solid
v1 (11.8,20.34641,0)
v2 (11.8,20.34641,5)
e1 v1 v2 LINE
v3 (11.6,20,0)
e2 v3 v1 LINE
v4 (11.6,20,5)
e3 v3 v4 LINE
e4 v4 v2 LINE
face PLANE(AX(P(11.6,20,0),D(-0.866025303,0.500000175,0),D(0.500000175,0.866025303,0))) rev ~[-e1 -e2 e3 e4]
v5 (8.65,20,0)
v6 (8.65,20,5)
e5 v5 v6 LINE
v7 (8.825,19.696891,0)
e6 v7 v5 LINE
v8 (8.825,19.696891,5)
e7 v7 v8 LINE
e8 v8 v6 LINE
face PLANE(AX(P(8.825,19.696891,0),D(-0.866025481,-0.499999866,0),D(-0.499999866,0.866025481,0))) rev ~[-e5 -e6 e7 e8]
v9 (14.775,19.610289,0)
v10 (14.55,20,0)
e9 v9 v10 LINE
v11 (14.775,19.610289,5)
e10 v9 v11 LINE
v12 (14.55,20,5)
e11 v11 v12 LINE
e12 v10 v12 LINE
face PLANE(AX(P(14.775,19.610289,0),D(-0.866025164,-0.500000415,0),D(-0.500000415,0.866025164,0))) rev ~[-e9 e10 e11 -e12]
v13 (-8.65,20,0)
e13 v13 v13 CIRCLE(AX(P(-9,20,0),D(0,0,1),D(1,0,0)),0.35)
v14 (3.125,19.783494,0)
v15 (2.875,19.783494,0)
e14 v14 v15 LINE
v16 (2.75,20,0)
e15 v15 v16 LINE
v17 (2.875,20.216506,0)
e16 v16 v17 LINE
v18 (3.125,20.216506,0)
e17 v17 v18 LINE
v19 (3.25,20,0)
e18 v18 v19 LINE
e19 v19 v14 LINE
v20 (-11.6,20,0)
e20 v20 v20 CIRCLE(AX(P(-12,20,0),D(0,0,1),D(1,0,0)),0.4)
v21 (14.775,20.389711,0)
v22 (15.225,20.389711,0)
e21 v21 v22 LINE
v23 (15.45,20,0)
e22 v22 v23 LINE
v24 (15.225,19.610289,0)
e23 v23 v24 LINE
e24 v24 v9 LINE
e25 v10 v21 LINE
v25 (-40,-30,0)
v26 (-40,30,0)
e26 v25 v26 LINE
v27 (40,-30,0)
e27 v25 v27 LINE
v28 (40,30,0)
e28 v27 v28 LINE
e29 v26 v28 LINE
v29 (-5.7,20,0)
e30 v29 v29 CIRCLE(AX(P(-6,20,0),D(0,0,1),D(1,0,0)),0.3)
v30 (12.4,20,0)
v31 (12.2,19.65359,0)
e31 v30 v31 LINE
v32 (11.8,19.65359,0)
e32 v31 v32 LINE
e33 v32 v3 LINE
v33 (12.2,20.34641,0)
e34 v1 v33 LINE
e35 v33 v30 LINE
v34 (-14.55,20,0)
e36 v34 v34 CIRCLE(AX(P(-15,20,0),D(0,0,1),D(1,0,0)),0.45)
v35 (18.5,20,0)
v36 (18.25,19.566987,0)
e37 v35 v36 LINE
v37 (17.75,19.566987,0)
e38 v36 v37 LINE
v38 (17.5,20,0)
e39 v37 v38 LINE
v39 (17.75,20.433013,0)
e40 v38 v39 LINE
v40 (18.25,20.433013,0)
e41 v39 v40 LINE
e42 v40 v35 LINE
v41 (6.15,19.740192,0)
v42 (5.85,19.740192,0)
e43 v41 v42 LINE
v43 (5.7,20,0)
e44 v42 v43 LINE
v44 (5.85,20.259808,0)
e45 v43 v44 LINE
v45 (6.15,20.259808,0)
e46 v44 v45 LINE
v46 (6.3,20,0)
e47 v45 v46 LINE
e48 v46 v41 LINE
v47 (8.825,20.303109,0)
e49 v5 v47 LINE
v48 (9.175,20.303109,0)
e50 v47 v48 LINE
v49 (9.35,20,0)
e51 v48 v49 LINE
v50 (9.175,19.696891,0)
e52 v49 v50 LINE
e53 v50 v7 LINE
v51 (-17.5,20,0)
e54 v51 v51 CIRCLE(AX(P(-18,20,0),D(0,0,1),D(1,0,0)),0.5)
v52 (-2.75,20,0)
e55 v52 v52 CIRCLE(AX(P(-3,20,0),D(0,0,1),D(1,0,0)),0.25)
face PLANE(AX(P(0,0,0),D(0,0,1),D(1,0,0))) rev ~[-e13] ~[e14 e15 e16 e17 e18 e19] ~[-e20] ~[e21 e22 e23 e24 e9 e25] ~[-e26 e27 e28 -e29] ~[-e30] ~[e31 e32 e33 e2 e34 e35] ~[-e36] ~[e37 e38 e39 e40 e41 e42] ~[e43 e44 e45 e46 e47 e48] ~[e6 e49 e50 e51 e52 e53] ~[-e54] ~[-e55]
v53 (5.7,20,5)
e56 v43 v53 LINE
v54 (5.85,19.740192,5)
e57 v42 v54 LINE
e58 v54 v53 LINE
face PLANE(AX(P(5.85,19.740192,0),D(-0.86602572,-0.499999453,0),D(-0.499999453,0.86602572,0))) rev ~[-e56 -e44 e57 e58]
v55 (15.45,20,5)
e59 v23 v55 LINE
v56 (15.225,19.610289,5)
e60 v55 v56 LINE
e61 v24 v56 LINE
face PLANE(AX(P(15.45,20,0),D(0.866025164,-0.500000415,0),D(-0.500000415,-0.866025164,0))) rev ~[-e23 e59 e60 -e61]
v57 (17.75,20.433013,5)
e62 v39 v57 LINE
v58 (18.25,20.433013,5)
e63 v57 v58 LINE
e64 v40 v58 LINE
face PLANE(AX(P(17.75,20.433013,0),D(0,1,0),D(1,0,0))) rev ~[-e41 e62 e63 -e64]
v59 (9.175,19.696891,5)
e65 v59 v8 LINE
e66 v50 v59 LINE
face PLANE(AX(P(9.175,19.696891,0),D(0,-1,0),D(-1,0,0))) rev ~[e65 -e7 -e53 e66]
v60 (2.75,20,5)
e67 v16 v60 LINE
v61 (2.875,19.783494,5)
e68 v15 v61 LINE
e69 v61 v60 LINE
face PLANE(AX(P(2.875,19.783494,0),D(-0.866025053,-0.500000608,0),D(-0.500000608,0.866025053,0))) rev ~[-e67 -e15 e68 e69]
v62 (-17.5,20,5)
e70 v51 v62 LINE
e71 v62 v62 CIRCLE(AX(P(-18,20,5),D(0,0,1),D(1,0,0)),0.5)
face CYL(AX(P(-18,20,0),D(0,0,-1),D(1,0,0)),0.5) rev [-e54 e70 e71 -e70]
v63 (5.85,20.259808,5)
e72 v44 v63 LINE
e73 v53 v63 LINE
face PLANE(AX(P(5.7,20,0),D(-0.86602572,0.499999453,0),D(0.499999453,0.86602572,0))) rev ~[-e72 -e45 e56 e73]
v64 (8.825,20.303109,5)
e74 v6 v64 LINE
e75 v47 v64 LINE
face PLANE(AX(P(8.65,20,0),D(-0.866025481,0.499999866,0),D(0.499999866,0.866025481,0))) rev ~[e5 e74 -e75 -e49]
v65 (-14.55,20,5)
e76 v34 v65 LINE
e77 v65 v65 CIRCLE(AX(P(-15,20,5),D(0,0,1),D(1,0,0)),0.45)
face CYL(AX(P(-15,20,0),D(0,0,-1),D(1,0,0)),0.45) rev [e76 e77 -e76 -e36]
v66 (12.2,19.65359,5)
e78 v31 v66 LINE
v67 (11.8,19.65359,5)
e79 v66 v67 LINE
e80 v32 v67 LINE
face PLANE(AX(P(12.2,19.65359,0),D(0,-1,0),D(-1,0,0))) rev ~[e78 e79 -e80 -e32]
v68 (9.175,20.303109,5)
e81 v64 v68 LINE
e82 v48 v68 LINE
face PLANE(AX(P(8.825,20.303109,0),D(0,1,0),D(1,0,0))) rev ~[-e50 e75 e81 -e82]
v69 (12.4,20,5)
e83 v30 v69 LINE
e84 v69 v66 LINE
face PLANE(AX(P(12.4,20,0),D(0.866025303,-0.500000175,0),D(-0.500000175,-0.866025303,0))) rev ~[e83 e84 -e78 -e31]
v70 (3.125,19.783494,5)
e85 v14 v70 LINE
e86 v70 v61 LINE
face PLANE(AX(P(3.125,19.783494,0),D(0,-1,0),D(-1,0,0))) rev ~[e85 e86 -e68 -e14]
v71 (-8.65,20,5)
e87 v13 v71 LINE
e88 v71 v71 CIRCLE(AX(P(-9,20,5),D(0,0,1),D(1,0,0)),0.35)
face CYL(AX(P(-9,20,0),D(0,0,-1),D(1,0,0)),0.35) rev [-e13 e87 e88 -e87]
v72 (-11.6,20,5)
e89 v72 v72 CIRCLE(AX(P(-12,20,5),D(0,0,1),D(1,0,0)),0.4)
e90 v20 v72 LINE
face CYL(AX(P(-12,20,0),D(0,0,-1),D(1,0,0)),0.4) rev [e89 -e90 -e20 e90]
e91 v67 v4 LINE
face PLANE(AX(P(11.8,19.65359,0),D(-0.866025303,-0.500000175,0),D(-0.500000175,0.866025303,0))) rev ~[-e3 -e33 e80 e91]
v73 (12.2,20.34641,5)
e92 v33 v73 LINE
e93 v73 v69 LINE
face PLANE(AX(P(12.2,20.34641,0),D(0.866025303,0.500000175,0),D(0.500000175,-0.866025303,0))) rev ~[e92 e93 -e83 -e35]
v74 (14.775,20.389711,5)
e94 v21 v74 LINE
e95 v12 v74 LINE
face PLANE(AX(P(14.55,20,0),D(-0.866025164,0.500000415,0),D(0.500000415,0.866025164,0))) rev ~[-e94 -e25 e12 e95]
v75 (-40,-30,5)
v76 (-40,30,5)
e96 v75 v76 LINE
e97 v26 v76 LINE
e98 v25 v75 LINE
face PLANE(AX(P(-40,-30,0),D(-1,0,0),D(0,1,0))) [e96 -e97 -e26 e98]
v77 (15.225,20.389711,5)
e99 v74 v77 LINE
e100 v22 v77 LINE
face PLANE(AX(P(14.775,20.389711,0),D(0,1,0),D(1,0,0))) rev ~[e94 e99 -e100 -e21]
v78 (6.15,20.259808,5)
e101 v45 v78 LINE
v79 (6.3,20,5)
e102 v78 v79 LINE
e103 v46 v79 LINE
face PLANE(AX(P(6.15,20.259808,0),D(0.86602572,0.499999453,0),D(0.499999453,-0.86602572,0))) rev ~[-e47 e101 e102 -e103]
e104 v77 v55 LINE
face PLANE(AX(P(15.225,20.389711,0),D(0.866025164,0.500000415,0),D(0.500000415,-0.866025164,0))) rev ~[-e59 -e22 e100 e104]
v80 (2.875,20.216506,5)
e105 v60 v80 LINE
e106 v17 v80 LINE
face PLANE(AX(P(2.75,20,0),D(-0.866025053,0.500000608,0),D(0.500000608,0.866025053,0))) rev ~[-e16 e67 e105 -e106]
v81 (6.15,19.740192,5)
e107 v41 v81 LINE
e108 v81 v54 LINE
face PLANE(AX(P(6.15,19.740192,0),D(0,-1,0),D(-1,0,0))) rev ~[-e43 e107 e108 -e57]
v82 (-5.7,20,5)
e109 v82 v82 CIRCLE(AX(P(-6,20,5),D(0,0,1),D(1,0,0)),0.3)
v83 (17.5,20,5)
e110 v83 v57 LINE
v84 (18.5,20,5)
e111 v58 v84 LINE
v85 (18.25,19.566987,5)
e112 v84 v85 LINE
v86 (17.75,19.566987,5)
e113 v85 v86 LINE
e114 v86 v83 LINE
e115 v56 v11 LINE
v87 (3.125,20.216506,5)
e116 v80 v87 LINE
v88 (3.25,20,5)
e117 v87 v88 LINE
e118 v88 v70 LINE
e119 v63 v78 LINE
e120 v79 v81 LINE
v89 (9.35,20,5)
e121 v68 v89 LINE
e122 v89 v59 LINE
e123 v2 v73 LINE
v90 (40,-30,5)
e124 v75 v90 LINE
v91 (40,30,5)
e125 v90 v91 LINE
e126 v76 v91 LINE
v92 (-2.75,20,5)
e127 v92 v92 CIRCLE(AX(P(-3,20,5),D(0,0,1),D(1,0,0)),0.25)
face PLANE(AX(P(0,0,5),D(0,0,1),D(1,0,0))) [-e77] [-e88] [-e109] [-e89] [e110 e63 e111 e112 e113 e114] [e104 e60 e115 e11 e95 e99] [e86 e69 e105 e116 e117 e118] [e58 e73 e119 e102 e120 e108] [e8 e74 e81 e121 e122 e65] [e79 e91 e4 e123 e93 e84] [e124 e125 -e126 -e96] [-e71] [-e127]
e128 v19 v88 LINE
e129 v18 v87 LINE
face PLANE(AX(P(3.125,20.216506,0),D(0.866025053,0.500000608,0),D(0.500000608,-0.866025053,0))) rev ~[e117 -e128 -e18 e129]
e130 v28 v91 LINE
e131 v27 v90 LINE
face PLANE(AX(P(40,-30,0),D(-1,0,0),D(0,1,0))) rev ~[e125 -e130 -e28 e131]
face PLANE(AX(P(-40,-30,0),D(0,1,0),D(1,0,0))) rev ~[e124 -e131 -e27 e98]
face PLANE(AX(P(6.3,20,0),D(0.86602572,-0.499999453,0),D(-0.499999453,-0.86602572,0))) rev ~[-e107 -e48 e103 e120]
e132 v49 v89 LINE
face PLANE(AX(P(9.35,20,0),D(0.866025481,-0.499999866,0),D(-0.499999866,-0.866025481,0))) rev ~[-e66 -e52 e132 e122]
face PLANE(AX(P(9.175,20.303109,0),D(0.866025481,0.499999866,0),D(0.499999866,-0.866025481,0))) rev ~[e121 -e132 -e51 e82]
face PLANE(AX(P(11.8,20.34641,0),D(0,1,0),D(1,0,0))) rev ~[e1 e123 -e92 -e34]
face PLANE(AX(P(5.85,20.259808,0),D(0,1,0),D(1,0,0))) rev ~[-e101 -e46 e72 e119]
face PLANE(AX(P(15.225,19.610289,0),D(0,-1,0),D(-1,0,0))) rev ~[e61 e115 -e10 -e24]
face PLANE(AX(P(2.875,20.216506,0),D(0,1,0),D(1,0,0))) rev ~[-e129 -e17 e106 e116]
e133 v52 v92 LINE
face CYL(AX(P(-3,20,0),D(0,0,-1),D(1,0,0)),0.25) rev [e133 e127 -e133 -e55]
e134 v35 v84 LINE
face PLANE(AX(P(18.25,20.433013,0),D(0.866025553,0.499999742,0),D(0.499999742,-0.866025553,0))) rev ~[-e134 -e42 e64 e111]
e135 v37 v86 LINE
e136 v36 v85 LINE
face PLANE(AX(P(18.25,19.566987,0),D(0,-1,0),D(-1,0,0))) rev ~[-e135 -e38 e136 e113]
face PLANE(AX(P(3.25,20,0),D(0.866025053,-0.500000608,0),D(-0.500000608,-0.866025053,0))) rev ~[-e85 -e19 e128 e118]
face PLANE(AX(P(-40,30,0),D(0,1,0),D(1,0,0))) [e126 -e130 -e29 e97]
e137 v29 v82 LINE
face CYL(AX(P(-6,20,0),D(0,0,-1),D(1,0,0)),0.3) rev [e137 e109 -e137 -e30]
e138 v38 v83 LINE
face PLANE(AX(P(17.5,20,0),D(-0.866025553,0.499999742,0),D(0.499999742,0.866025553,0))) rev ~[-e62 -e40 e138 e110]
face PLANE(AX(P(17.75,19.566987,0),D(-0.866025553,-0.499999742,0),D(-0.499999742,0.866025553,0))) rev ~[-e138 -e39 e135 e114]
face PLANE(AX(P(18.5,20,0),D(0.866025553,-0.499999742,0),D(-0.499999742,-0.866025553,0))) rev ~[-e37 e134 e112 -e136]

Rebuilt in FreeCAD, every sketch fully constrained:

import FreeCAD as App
import Part
import Sketcher

V = App.Vector
Q = App.Units.Quantity


def add_polygon(sketch, points):
    """Adds a closed chain of lines whose ends are joined by coincident constraints."""
    first, n = sketch.GeometryCount, len(points)
    for a, b in zip(points, points[1:] + points[:1]):
        sketch.addGeometry(Part.LineSegment(App.Vector(*a, 0), App.Vector(*b, 0)), False)
    for i in range(n):
        sketch.addConstraint(Sketcher.Constraint("Coincident", first + i, 2, first + (i + 1) % n, 1))

doc = App.newDocument("Part")
body = doc.addObject("PartDesign::Body", "Body")

# Sketch on XY plane
sketch1 = doc.addObject("Sketcher::SketchObject", "Sketch")
body.addObject(sketch1)
sketch1.AttachmentSupport = (doc.XY_Plane, [""])
sketch1.MapMode = "FlatFace"
add_polygon(sketch1, [(-40, 30), (-40, -30), (40, -30), (40, 30)])  # lines 0-3
sketch1.addGeometry(Part.Circle(V(-18, 20, 0), V(0, 0, 1), 0.5), False)  # 4
sketch1.addGeometry(Part.Circle(V(-15, 20, 0), V(0, 0, 1), 0.45), False)  # 5
sketch1.addGeometry(Part.Circle(V(-12, 20, 0), V(0, 0, 1), 0.4), False)  # 6
sketch1.addGeometry(Part.Circle(V(-9, 20, 0), V(0, 0, 1), 0.35), False)  # 7
sketch1.addGeometry(Part.Circle(V(-6, 20, 0), V(0, 0, 1), 0.3), False)  # 8
sketch1.addGeometry(Part.Circle(V(-3, 20, 0), V(0, 0, 1), 0.25), False)  # 9
add_polygon(sketch1, [(2.75, 20), (2.88, 20.22), (3.12, 20.22), (3.25, 20), (3.12, 19.78), (2.88, 19.78)])  # lines 10-15
add_polygon(sketch1, [(5.7, 20), (5.85, 20.26), (6.15, 20.26), (6.3, 20), (6.15, 19.74), (5.85, 19.74)])  # lines 16-21
add_polygon(sketch1, [(8.65, 20), (8.82, 20.3), (9.18, 20.3), (9.35, 20), (9.18, 19.7), (8.82, 19.7)])  # lines 22-27
add_polygon(sketch1, [(11.6, 20), (11.8, 20.35), (12.2, 20.35), (12.4, 20), (12.2, 19.65), (11.8, 19.65)])  # lines 28-33
add_polygon(sketch1, [(14.55, 20), (14.78, 20.39), (15.22, 20.39), (15.45, 20), (15.22, 19.61), (14.78, 19.61)])  # lines 34-39
add_polygon(sketch1, [(18.25, 20.43), (18.5, 20), (18.25, 19.57), (17.75, 19.57), (17.5, 20), (17.75, 20.43)])  # lines 40-45
sketch1.addConstraint([
    Sketcher.Constraint("Vertical", 0),
    Sketcher.Constraint("Horizontal", 1),
    Sketcher.Constraint("Vertical", 2),
    Sketcher.Constraint("Horizontal", 3),
    Sketcher.Constraint("Horizontal", 11),
    Sketcher.Constraint("Horizontal", 14),
    Sketcher.Constraint("Horizontal", 17),
    Sketcher.Constraint("Horizontal", 20),
    Sketcher.Constraint("Horizontal", 23),
    Sketcher.Constraint("Horizontal", 26),
    Sketcher.Constraint("Horizontal", 29),
    Sketcher.Constraint("Horizontal", 32),
    Sketcher.Constraint("Horizontal", 35),
    Sketcher.Constraint("Horizontal", 38),
    Sketcher.Constraint("Horizontal", 42),
    Sketcher.Constraint("Horizontal", 45),
    Sketcher.Constraint("Symmetric", 0, 2, 2, 2, -1, 1),
    Sketcher.Constraint("Parallel", 10, 13),
    Sketcher.Constraint("Parallel", 12, 15),
    Sketcher.Constraint("Parallel", 13, 16),
    Sketcher.Constraint("Parallel", 15, 18),
    Sketcher.Constraint("Parallel", 16, 19),
    Sketcher.Constraint("Parallel", 18, 21),
    Sketcher.Constraint("Parallel", 19, 22),
    Sketcher.Constraint("Parallel", 21, 24),
    Sketcher.Constraint("Parallel", 22, 25),
    Sketcher.Constraint("Parallel", 24, 27),
    Sketcher.Constraint("Parallel", 25, 28),
    Sketcher.Constraint("Parallel", 27, 30),
    Sketcher.Constraint("Parallel", 28, 31),
    Sketcher.Constraint("Parallel", 30, 33),
    Sketcher.Constraint("Parallel", 31, 34),
    Sketcher.Constraint("Parallel", 33, 36),
    Sketcher.Constraint("Parallel", 34, 37),
    Sketcher.Constraint("Parallel", 36, 39),
    Sketcher.Constraint("Parallel", 39, 40),
    Sketcher.Constraint("Parallel", 37, 41),
    Sketcher.Constraint("Parallel", 40, 43),
    Sketcher.Constraint("Parallel", 41, 44),
    Sketcher.Constraint("Horizontal", 4, 3, 5, 3),
    Sketcher.Constraint("Horizontal", 5, 3, 6, 3),
    Sketcher.Constraint("Horizontal", 6, 3, 7, 3),
    Sketcher.Constraint("Horizontal", 7, 3, 8, 3),
    Sketcher.Constraint("Horizontal", 8, 3, 9, 3),
    Sketcher.Constraint("Horizontal", 9, 3, 12, 2),
    Sketcher.Constraint("Horizontal", 12, 2, 15, 2),
    Sketcher.Constraint("Horizontal", 15, 2, 18, 2),
    Sketcher.Constraint("Horizontal", 18, 2, 21, 2),
    Sketcher.Constraint("Horizontal", 21, 2, 24, 2),
    Sketcher.Constraint("Horizontal", 24, 2, 27, 2),
    Sketcher.Constraint("Horizontal", 27, 2, 30, 2),
    Sketcher.Constraint("Horizontal", 30, 2, 33, 2),
    Sketcher.Constraint("Horizontal", 33, 2, 36, 2),
    Sketcher.Constraint("Horizontal", 36, 2, 39, 2),
    Sketcher.Constraint("Horizontal", 39, 2, 40, 2),
    Sketcher.Constraint("Horizontal", 40, 2, 43, 2),
    Sketcher.Constraint("Vertical", 11, 2, 13, 2),
    Sketcher.Constraint("Vertical", 10, 2, 14, 2),
    Sketcher.Constraint("Vertical", 17, 2, 19, 2),
    Sketcher.Constraint("Vertical", 23, 2, 25, 2),
    Sketcher.Constraint("Vertical", 29, 2, 31, 2),
    Sketcher.Constraint("Vertical", 35, 2, 37, 2),
    Sketcher.Constraint("Vertical", 42, 2, 44, 2),
    Sketcher.Constraint("Diameter", 4, 1.0),
    Sketcher.Constraint("Diameter", 5, 0.9),
    Sketcher.Constraint("Diameter", 6, 0.8),
    Sketcher.Constraint("Diameter", 7, 0.7),
    Sketcher.Constraint("Diameter", 8, 0.6),
    Sketcher.Constraint("Diameter", 9, 0.5),
    Sketcher.Constraint("DistanceX", 1, 1, 1, 2, 80.0),
    Sketcher.Constraint("DistanceY", 0, 2, 0, 1, 60.0),
    Sketcher.Constraint("Angle", 22, Q("60.000009 deg")),
    Sketcher.Constraint("DistanceX", 17, 1, 17, 2, 0.3),
    Sketcher.Constraint("DistanceX", 29, 1, 29, 2, 0.4),
    Sketcher.Constraint("DistanceX", 42, 2, 42, 1, 0.5),
    Sketcher.Constraint("DistanceX", 4, 3, -1, 1, 18.0),
    Sketcher.Constraint("DistanceY", -1, 1, 4, 3, 20.0),
    Sketcher.Constraint("DistanceX", 5, 3, -1, 1, 15.0),
    Sketcher.Constraint("DistanceX", 6, 3, -1, 1, 12.0),
    Sketcher.Constraint("DistanceX", 7, 3, -1, 1, 9.0),
    Sketcher.Constraint("DistanceX", 8, 3, -1, 1, 6.0),
    Sketcher.Constraint("DistanceX", 9, 3, -1, 1, 3.0),
    Sketcher.Constraint("DistanceX", 43, 2, 40, 2, 1.0),
    Sketcher.Constraint("Distance", 16, 0.3),
    Sketcher.Constraint("Distance", 28, 0.4),
    Sketcher.Constraint("DistanceX", 11, 1, 11, 2, 0.25),
    Sketcher.Constraint("DistanceX", 23, 1, 23, 2, 0.35),
    Sketcher.Constraint("DistanceX", 35, 1, 35, 2, 0.45),
    Sketcher.Constraint("DistanceX", -1, 1, 18, 2, 6.3),
    Sketcher.Constraint("DistanceX", -1, 1, 28, 2, 11.8),
    Sketcher.Constraint("DistanceX", -1, 1, 40, 2, 18.5),
    Sketcher.Constraint("DistanceX", 15, 2, 12, 2, 0.5),
    Sketcher.Constraint("DistanceX", 12, 2, 16, 2, 2.6),
    Sketcher.Constraint("DistanceX", 17, 2, 24, 2, 3.2),
    Sketcher.Constraint("DistanceX", 27, 2, 24, 2, 0.7),
    Sketcher.Constraint("DistanceX", 39, 2, 36, 2, 0.9),
    Sketcher.Constraint("DistanceX", 36, 2, 41, 2, 2.8),
])
pad1 = doc.addObject("PartDesign::Pad", "Pad")
body.addObject(pad1)
pad1.Profile = sketch1
pad1.Length = 5

doc.recompute()
